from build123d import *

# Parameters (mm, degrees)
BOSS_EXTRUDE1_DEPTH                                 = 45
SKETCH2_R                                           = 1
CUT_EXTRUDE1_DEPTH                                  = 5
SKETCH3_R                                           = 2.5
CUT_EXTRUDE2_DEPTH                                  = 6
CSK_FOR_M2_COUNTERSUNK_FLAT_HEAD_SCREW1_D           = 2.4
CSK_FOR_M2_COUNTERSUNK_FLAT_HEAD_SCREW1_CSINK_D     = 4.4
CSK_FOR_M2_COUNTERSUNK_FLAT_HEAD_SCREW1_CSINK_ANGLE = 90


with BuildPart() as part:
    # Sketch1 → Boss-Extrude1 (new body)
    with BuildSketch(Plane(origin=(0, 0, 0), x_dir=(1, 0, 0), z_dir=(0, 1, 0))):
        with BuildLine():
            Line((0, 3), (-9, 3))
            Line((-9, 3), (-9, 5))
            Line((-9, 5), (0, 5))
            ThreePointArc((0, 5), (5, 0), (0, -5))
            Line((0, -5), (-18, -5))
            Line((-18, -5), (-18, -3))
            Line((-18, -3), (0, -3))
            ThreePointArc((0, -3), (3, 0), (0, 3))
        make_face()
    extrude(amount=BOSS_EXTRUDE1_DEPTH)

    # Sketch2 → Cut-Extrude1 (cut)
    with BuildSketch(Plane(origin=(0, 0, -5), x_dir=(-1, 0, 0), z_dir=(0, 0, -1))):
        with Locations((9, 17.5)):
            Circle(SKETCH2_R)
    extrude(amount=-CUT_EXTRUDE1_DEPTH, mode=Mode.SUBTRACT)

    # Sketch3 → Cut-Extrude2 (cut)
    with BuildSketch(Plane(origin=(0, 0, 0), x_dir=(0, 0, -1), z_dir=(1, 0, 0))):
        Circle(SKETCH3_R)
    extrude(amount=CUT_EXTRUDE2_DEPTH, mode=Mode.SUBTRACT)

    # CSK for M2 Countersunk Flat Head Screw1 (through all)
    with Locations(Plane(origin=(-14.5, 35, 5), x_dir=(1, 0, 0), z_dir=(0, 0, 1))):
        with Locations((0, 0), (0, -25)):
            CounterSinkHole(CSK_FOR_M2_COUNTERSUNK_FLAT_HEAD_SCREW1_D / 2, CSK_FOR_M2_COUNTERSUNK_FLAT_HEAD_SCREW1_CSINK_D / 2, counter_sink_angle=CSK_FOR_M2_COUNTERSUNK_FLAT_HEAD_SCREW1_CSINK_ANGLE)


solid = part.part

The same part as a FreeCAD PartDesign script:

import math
import FreeCAD as App
import Part
import Sketcher

doc = App.newDocument("Part")
body = doc.addObject("PartDesign::Body", "Body")

sketch1 = body.newObject("Sketcher::SketchObject", "Sketch")
sketch1.AttachmentSupport = (doc.getObject("XZ_Plane"), [""])
sketch1.MapMode = "FlatFace"
sketch1.addGeometry([
    Part.LineSegment(App.Vector(-9, -3, 0), App.Vector(0, -3, 0)),
    Part.ArcOfCircle(Part.Circle(App.Vector(0, 0, 0), App.Vector(0, 0, 1), 3), math.radians(-90), math.radians(90)),
    Part.LineSegment(App.Vector(0, 3, 0), App.Vector(-18, 3, 0)),
    Part.LineSegment(App.Vector(-18, 3, 0), App.Vector(-18, 5, 0)),
    Part.LineSegment(App.Vector(-18, 5, 0), App.Vector(0, 5, 0)),
    Part.ArcOfCircle(Part.Circle(App.Vector(0, 0, 0), App.Vector(0, 0, 1), 5), math.radians(-90), math.radians(90)),
    Part.LineSegment(App.Vector(0, -5, 0), App.Vector(-9, -5, 0)),
    Part.LineSegment(App.Vector(-9, -5, 0), App.Vector(-9, -3, 0)),
], False)
sketch1.addConstraint([
    Sketcher.Constraint("Tangent", 0, 2, 1, 1),
    Sketcher.Constraint("Tangent", 1, 2, 2, 1),
    Sketcher.Constraint("Coincident", 2, 2, 3, 1),
    Sketcher.Constraint("Coincident", 3, 2, 4, 1),
    Sketcher.Constraint("Tangent", 4, 2, 5, 2),
    Sketcher.Constraint("Tangent", 5, 1, 6, 1),
    Sketcher.Constraint("Coincident", 6, 2, 7, 1),
    Sketcher.Constraint("Coincident", 7, 2, 0, 1),
    Sketcher.Constraint("Horizontal", 0),
    Sketcher.Constraint("Horizontal", 2),
    Sketcher.Constraint("Vertical", 3),
    Sketcher.Constraint("Horizontal", 4),
    Sketcher.Constraint("Horizontal", 6),
    Sketcher.Constraint("Vertical", 7),
    Sketcher.Constraint("Coincident", 1, 3, -1, 1),
    Sketcher.Constraint("Coincident", 5, 3, -1, 1),
    Sketcher.Constraint("Radius", 1, 3.0),
    Sketcher.Constraint("Radius", 5, 5.0),
    Sketcher.Constraint("DistanceX", 0, 1, 0, 2, 9.0),
    Sketcher.Constraint("DistanceX", 2, 2, 2, 1, 18.0),
])
pad1 = body.newObject("PartDesign::Pad", "Pad")
pad1.Profile = sketch1
pad1.Length = 45
pad1.Reversed = True

sketch2 = body.newObject("Sketcher::SketchObject", "Sketch001")
sketch2.AttachmentSupport = (doc.getObject("XY_Plane"), [""])
sketch2.MapMode = "FlatFace"
sketch2.AttachmentOffset = App.Placement(App.Vector(0, 0, -5), App.Rotation())
sketch2.addGeometry(Part.Circle(App.Vector(-9, 17.5, 0), App.Vector(0, 0, 1), 1), False)
sketch2.addConstraint([
    Sketcher.Constraint("Diameter", 0, 2.0),
    Sketcher.Constraint("DistanceX", 0, 3, -1, 1, 9.0),
    Sketcher.Constraint("DistanceY", -1, 1, 0, 3, 17.5),
])
pocket1 = body.newObject("PartDesign::Pocket", "Pocket")
pocket1.Profile = sketch2
pocket1.Length = 5
pocket1.Reversed = True

sketch3 = body.newObject("Sketcher::SketchObject", "Sketch002")
sketch3.AttachmentSupport = (doc.getObject("YZ_Plane"), [""])
sketch3.MapMode = "FlatFace"
sketch3.addGeometry(Part.Circle(App.Vector(0, 0, 0), App.Vector(0, 0, 1), 2.5), False)
sketch3.addConstraint([
    Sketcher.Constraint("Coincident", 0, 3, -1, 1),
    Sketcher.Constraint("Diameter", 0, 5.0),
])
pocket2 = body.newObject("PartDesign::Pocket", "Pocket001")
pocket2.Profile = sketch3
pocket2.Length = 6
pocket2.Reversed = True

sketch4 = body.newObject("Sketcher::SketchObject", "Sketch003")
sketch4.AttachmentSupport = (doc.getObject("XY_Plane"), [""])
sketch4.MapMode = "FlatFace"
sketch4.AttachmentOffset = App.Placement(App.Vector(0, 0, 5), App.Rotation())
sketch4.addGeometry([
    Part.Circle(App.Vector(-14.5, 35, 0), App.Vector(0, 0, 1), 1.2),
    Part.Circle(App.Vector(-14.5, 10, 0), App.Vector(0, 0, 1), 1.2),
], False)
sketch4.addConstraint([
    Sketcher.Constraint("Equal", 0, 1),
    Sketcher.Constraint("Vertical", 0, 3, 1, 3),
    Sketcher.Constraint("Diameter", 0, 2.4),
    Sketcher.Constraint("DistanceY", -1, 1, 0, 3, 35.0),
    Sketcher.Constraint("DistanceY", -1, 1, 1, 3, 10.0),
    Sketcher.Constraint("DistanceX", 0, 3, -1, 1, 14.5),
])
doc.recompute()
hole = body.newObject("PartDesign::Hole", "Hole")
hole.Profile = sketch4
hole.ThreadType = "None"
hole.Diameter = 2.4
hole.DepthType = "ThroughAll"
hole.HoleCutType = "Countersink"
hole.HoleCutDiameter = 4.4
hole.HoleCutCountersinkAngle = 90

doc.recompute()
